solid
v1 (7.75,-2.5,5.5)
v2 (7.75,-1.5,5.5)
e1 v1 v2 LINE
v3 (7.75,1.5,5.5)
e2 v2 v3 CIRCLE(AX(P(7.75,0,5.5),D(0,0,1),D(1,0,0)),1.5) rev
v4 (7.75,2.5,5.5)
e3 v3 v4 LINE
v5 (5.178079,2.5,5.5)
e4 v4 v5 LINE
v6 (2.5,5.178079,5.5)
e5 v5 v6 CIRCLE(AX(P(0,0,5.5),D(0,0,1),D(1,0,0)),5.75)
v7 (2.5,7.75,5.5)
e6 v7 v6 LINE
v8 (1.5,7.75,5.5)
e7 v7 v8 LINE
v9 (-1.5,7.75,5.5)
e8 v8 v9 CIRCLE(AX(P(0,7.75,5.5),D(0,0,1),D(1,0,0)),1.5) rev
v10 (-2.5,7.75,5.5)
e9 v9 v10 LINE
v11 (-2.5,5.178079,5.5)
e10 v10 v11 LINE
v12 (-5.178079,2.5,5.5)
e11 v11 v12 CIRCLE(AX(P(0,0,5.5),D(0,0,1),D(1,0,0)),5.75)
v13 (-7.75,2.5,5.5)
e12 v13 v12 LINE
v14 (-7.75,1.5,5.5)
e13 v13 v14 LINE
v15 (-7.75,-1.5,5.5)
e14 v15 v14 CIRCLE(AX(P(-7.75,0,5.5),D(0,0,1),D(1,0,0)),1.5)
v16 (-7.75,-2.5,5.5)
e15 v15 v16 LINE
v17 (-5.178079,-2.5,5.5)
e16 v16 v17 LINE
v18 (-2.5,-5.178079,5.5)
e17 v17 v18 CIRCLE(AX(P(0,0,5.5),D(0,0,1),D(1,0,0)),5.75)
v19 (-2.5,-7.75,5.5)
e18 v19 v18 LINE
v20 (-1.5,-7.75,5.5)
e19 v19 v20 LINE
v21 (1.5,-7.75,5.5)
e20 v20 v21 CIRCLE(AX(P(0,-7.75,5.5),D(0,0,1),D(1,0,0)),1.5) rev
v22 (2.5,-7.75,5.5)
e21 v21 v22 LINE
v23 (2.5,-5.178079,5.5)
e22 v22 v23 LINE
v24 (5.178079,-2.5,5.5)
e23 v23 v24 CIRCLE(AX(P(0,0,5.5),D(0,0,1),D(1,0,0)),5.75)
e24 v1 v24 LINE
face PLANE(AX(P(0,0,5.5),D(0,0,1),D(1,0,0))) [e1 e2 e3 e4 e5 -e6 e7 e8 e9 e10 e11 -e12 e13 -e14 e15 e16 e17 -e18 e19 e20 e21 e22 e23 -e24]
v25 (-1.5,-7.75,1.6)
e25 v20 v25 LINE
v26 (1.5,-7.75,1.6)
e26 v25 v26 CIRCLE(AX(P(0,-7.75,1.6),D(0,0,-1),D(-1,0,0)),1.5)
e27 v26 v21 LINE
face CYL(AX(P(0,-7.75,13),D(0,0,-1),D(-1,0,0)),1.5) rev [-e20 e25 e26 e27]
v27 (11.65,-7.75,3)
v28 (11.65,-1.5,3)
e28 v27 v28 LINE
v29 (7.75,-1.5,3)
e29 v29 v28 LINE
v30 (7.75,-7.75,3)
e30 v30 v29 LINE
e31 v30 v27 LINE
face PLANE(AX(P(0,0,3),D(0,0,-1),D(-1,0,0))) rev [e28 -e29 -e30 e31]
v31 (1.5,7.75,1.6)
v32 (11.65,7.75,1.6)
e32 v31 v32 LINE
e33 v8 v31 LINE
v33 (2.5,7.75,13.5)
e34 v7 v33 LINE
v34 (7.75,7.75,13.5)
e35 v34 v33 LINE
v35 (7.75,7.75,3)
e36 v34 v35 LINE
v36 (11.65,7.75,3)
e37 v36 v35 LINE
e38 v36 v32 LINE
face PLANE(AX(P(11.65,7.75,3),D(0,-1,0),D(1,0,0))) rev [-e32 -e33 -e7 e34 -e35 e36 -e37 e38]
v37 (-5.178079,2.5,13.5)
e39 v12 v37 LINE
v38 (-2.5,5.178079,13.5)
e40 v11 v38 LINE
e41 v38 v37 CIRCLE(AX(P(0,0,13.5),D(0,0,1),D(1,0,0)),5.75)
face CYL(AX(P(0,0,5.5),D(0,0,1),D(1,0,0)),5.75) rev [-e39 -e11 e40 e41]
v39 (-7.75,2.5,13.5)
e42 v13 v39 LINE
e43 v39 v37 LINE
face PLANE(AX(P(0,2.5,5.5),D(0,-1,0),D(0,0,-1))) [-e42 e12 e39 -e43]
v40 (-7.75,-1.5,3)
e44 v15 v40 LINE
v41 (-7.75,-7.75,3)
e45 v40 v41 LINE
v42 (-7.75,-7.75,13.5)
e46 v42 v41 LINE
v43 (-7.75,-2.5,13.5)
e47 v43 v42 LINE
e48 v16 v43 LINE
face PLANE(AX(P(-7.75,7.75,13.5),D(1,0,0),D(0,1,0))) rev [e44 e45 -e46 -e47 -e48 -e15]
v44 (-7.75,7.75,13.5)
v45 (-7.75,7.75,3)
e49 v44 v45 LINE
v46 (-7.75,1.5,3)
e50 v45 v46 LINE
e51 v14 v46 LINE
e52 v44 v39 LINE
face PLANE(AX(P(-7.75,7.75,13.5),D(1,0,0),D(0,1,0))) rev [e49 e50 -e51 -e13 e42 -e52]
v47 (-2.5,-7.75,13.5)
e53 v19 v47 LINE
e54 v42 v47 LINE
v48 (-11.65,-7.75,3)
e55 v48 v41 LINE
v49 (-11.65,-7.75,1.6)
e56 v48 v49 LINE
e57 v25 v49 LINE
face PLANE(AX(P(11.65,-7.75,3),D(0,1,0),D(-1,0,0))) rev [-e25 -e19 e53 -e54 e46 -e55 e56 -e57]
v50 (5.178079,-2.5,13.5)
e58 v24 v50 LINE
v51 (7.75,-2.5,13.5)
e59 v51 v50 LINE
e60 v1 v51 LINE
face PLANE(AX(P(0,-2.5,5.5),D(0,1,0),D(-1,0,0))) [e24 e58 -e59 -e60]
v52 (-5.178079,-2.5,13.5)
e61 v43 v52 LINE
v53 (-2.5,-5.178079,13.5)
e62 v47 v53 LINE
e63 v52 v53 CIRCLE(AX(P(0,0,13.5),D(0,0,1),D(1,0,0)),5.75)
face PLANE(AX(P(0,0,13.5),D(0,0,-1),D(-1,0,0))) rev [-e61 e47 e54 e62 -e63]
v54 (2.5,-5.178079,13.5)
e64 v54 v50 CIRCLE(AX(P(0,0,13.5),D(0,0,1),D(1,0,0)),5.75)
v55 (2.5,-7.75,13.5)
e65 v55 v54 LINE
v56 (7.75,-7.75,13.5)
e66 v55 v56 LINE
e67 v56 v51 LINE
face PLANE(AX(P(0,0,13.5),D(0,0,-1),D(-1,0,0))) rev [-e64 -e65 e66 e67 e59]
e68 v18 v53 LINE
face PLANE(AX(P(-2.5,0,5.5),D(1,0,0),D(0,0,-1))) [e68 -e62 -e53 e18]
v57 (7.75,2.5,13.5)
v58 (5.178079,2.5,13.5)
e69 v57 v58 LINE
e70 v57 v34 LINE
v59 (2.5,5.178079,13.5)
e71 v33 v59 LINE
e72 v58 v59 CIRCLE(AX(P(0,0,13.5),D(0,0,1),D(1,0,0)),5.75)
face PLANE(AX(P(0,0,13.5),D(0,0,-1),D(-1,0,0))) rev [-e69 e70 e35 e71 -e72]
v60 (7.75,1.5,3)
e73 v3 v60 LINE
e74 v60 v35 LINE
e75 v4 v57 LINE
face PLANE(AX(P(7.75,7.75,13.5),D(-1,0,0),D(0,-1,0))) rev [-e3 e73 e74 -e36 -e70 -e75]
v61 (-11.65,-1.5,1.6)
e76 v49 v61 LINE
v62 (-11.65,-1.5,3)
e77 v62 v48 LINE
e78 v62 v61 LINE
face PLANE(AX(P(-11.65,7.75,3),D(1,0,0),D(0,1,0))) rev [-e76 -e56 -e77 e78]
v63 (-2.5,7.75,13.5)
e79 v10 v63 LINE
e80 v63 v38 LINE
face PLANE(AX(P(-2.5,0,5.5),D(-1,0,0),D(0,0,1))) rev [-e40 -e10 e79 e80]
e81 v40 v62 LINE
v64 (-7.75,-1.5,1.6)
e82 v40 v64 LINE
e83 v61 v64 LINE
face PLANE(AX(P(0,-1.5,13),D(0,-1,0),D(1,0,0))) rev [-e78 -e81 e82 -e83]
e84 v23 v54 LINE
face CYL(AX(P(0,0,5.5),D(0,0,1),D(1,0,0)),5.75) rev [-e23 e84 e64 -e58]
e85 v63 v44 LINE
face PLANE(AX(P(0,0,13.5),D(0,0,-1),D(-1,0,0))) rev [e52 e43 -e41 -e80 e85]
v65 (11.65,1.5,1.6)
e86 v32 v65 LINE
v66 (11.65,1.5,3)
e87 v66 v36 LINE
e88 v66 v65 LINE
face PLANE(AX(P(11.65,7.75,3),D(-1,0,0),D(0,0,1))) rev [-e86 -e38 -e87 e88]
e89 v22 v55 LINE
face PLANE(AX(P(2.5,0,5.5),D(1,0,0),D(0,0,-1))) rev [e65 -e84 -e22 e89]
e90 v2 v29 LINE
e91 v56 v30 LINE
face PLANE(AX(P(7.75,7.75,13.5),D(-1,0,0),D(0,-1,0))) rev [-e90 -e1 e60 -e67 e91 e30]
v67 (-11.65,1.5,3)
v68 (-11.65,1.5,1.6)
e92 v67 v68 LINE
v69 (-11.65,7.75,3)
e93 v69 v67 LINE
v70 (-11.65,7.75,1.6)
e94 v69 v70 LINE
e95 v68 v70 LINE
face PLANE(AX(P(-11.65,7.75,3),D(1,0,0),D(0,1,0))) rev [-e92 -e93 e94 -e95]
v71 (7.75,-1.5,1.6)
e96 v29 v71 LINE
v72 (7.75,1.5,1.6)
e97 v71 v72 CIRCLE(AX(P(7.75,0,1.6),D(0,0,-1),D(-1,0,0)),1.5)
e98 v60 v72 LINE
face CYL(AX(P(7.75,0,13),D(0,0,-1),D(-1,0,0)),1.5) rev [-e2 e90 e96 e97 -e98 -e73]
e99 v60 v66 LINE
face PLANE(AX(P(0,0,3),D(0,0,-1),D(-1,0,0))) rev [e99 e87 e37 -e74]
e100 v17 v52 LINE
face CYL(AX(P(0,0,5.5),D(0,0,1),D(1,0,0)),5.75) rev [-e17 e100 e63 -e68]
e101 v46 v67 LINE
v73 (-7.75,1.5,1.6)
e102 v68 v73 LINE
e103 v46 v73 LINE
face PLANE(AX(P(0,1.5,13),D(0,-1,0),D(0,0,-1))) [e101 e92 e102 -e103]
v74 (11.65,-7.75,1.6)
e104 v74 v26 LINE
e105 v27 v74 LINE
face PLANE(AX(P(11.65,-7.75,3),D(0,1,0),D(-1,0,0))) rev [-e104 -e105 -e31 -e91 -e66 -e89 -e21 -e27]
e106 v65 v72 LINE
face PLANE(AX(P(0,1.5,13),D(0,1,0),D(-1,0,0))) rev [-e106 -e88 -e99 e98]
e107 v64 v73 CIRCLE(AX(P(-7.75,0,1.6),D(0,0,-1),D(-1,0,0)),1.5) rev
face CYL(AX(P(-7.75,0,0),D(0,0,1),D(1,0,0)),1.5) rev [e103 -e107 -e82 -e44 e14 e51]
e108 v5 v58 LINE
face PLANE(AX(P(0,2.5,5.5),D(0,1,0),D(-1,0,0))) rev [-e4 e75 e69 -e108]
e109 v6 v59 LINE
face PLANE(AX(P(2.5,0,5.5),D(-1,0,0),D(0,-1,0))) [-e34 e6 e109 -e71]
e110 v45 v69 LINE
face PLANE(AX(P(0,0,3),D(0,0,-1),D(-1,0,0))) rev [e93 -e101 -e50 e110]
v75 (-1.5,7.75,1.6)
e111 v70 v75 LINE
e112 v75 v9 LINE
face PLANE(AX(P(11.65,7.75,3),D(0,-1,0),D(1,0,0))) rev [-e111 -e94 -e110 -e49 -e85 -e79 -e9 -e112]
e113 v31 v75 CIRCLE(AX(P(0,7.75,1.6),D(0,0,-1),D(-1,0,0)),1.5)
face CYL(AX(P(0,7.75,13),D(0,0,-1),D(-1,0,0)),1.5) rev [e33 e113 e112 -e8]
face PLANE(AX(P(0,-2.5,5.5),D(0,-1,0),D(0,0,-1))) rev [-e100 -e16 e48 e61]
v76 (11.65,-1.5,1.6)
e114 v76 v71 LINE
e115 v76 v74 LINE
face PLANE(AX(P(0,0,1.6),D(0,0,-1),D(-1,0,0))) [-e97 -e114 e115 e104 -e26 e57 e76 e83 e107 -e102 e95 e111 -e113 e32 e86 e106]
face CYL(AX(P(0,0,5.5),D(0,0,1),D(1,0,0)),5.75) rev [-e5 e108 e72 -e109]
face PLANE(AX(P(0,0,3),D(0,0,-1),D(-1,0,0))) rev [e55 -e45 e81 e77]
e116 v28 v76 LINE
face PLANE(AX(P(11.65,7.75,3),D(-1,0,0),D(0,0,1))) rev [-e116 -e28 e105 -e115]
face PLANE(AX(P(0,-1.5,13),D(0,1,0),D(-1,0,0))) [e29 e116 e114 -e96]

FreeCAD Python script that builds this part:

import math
import FreeCAD as App
import Part
import Sketcher

V = App.Vector


def add_polygon(sketch, points):
    """Adds a closed chain of lines whose ends are joined by coincident constraints."""
    first, n = sketch.GeometryCount, len(points)
    for a, b in zip(points, points[1:] + points[:1]):
        sketch.addGeometry(Part.LineSegment(App.Vector(*a, 0), App.Vector(*b, 0)), False)
    for i in range(n):
        sketch.addConstraint(Sketcher.Constraint("Coincident", first + i, 2, first + (i + 1) % n, 1))

doc = App.newDocument("Part")
body = doc.addObject("PartDesign::Body", "Body")

sketch1 = doc.addObject("Sketcher::SketchObject", "Sketch")
body.addObject(sketch1)
sketch1.AttachmentSupport = (doc.XY_Plane, [""])
sketch1.MapMode = "FlatFace"
add_polygon(sketch1, [(-12, 8), (-12, -8), (12, -8), (12, 8)])
sketch1.addConstraint(Sketcher.Constraint("Vertical", 0))
sketch1.addConstraint(Sketcher.Constraint("Horizontal", 1))
sketch1.addConstraint(Sketcher.Constraint("Vertical", 2))
sketch1.addConstraint(Sketcher.Constraint("Horizontal", 3))
sketch1.addConstraint(Sketcher.Constraint("Symmetric", 0, 2, 2, 2, -1, 1))
sketch1.addConstraint(Sketcher.Constraint("DistanceX", 1, 1, 1, 2, 23.3))
sketch1.addConstraint(Sketcher.Constraint("DistanceY", 0, 2, 0, 1, 15.5))
pad1 = doc.addObject("PartDesign::Pad", "Pad")
body.addObject(pad1)
pad1.Profile = sketch1
pad1.Length = 3

sketch2 = doc.addObject("Sketcher::SketchObject", "Sketch001")
body.addObject(sketch2)
sketch2.AttachmentSupport = (doc.XY_Plane, [""])
sketch2.MapMode = "FlatFace"
sketch2.AttachmentOffset = App.Placement(V(0, 0, 3), App.Rotation())
add_polygon(sketch2, [(-8, 8), (-8, -8), (8, -8), (8, 8)])
sketch2.addConstraint(Sketcher.Constraint("Vertical", 0))
sketch2.addConstraint(Sketcher.Constraint("Horizontal", 1))
sketch2.addConstraint(Sketcher.Constraint("Vertical", 2))
sketch2.addConstraint(Sketcher.Constraint("Horizontal", 3))
sketch2.addConstraint(Sketcher.Constraint("Symmetric", 0, 2, 2, 2, -1, 1))
sketch2.addConstraint(Sketcher.Constraint("Equal", 3, 0))
sketch2.addConstraint(Sketcher.Constraint("DistanceX", 1, 1, 1, 2, 15.5))
pad2 = doc.addObject("PartDesign::Pad", "Pad001")
body.addObject(pad2)
pad2.Profile = sketch2
pad2.Length = 10.5

sketch3 = doc.addObject("Sketcher::SketchObject", "Sketch002")
body.addObject(sketch3)
sketch3.AttachmentSupport = (doc.XY_Plane, [""])
sketch3.MapMode = "FlatFace"
sketch3.AttachmentOffset = App.Placement(V(0, 0, 13.5), App.Rotation())
sketch3.addGeometry(Part.ArcOfCircle(Part.Circle(V(0, 0, 0), V(0, 0, 1), 5.7), math.radians(116), math.radians(154)), False)
sketch3.addGeometry(Part.LineSegment(V(-5.2, 2.5, 0), V(-7.8, 2.5, 0)), False)
sketch3.addGeometry(Part.LineSegment(V(-7.8, 2.5, 0), V(-7.8, -2.5, 0)), False)
sketch3.addGeometry(Part.LineSegment(V(-7.8, -2.5, 0), V(-5.2, -2.5, 0)), False)
sketch3.addGeometry(Part.ArcOfCircle(Part.Circle(V(0, 0, 0), V(0, 0, 1), 5.7), math.radians(-154), math.radians(-116)), False)
sketch3.addGeometry(Part.LineSegment(V(-2.5, -5.2, 0), V(-2.5, -7.8, 0)), False)
sketch3.addGeometry(Part.LineSegment(V(-2.5, -7.8, 0), V(2.5, -7.8, 0)), False)
sketch3.addGeometry(Part.LineSegment(V(2.5, -7.8, 0), V(2.5, -5.2, 0)), False)
sketch3.addGeometry(Part.ArcOfCircle(Part.Circle(V(0, 0, 0), V(0, 0, 1), 5.7), math.radians(-64), math.radians(-26)), False)
sketch3.addGeometry(Part.LineSegment(V(5.2, -2.5, 0), V(7.8, -2.5, 0)), False)
sketch3.addGeometry(Part.LineSegment(V(7.8, -2.5, 0), V(7.8, 2.5, 0)), False)
sketch3.addGeometry(Part.LineSegment(V(7.8, 2.5, 0), V(5.2, 2.5, 0)), False)
sketch3.addGeometry(Part.ArcOfCircle(Part.Circle(V(0, 0, 0), V(0, 0, 1), 5.7), math.radians(26), math.radians(64)), False)
sketch3.addGeometry(Part.LineSegment(V(2.5, 5.2, 0), V(2.5, 7.8, 0)), False)
sketch3.addGeometry(Part.LineSegment(V(2.5, 7.8, 0), V(-2.5, 7.8, 0)), False)
sketch3.addGeometry(Part.LineSegment(V(-2.5, 7.8, 0), V(-2.5, 5.2, 0)), False)
sketch3.addConstraint(Sketcher.Constraint("Coincident", 0, 2, 1, 1))
sketch3.addConstraint(Sketcher.Constraint("Coincident", 1, 2, 2, 1))
sketch3.addConstraint(Sketcher.Constraint("Coincident", 2, 2, 3, 1))
sketch3.addConstraint(Sketcher.Constraint("Coincident", 3, 2, 4, 1))
sketch3.addConstraint(Sketcher.Constraint("Coincident", 4, 2, 5, 1))
sketch3.addConstraint(Sketcher.Constraint("Coincident", 5, 2, 6, 1))
sketch3.addConstraint(Sketcher.Constraint("Coincident", 6, 2, 7, 1))
sketch3.addConstraint(Sketcher.Constraint("Coincident", 7, 2, 8, 1))
sketch3.addConstraint(Sketcher.Constraint("Coincident", 8, 2, 9, 1))
sketch3.addConstraint(Sketcher.Constraint("Coincident", 9, 2, 10, 1))
sketch3.addConstraint(Sketcher.Constraint("Coincident", 10, 2, 11, 1))
sketch3.addConstraint(Sketcher.Constraint("Coincident", 11, 2, 12, 1))
sketch3.addConstraint(Sketcher.Constraint("Coincident", 12, 2, 13, 1))
sketch3.addConstraint(Sketcher.Constraint("Coincident", 13, 2, 14, 1))
sketch3.addConstraint(Sketcher.Constraint("Coincident", 14, 2, 15, 1))
sketch3.addConstraint(Sketcher.Constraint("Coincident", 15, 2, 0, 1))
sketch3.addConstraint(Sketcher.Constraint("Horizontal", 1))
sketch3.addConstraint(Sketcher.Constraint("Vertical", 2))
sketch3.addConstraint(Sketcher.Constraint("Horizontal", 3))
sketch3.addConstraint(Sketcher.Constraint("Vertical", 5))
sketch3.addConstraint(Sketcher.Constraint("Horizontal", 6))
sketch3.addConstraint(Sketcher.Constraint("Vertical", 7))
sketch3.addConstraint(Sketcher.Constraint("Horizontal", 9))
sketch3.addConstraint(Sketcher.Constraint("Vertical", 10))
sketch3.addConstraint(Sketcher.Constraint("Horizontal", 11))
sketch3.addConstraint(Sketcher.Constraint("Vertical", 13))
sketch3.addConstraint(Sketcher.Constraint("Horizontal", 14))
sketch3.addConstraint(Sketcher.Constraint("Vertical", 15))
sketch3.addConstraint(Sketcher.Constraint("Coincident", 0, 3, -1, 1))
sketch3.addConstraint(Sketcher.Constraint("Coincident", 4, 3, -1, 1))
sketch3.addConstraint(Sketcher.Constraint("Coincident", 8, 3, -1, 1))
sketch3.addConstraint(Sketcher.Constraint("Coincident", 12, 3, -1, 1))
sketch3.addConstraint(Sketcher.Constraint("Equal", 0, 4))
sketch3.addConstraint(Sketcher.Constraint("Equal", 4, 8))
sketch3.addConstraint(Sketcher.Constraint("Equal", 8, 12))
sketch3.addConstraint(Sketcher.Constraint("Symmetric", 1, 2, 9, 2, -1, 1))
sketch3.addConstraint(Sketcher.Constraint("Symmetric", 5, 2, 13, 2, -1, 1))
sketch3.addConstraint(Sketcher.Constraint("Horizontal", 4, 2, 7, 2))
sketch3.addConstraint(Sketcher.Constraint("Horizontal", 3, 2, 8, 2))
sketch3.addConstraint(Sketcher.Constraint("Horizontal", 1, 2, 10, 2))
sketch3.addConstraint(Sketcher.Constraint("Horizontal", 12, 2, 15, 2))
sketch3.addConstraint(Sketcher.Constraint("Equal", 14, 2))
sketch3.addConstraint(Sketcher.Constraint("Equal", 11, 5))
sketch3.addConstraint(Sketcher.Constraint("DistanceX", 6, 1, 6, 2, 5.0))
sketch3.addConstraint(Sketcher.Constraint("Radius", 0, 5.75))
sketch3.addConstraint(Sketcher.Constraint("DistanceX", 1, 2, -1, 1, 7.75))
pocket1 = doc.addObject("PartDesign::Pocket", "Pocket")
body.addObject(pocket1)
pocket1.Profile = sketch3
pocket1.Length = 8

sketch4 = doc.addObject("Sketcher::SketchObject", "Sketch003")
body.addObject(sketch4)
sketch4.AttachmentSupport = (doc.XY_Plane, [""])
sketch4.MapMode = "FlatFace"
sketch4.AttachmentOffset = App.Placement(V(0, 0, 3), App.Rotation())
sketch4.addGeometry(Part.Circle(V(0, 7.8, 0), V(0, 0, 1), 1.5), False)
sketch4.addGeometry(Part.ArcOfCircle(Part.Circle(V(7.8, 0, 0), V(0, 0, 1), 1.5), math.radians(90), math.radians(270)), False)
sketch4.addGeometry(Part.LineSegment(V(7.8, -1.5, 0), V(11.7, -1.5, 0)), False)
sketch4.addGeometry(Part.LineSegment(V(11.7, -1.5, 0), V(11.7, 1.5, 0)), False)
sketch4.addGeometry(Part.LineSegment(V(11.7, 1.5, 0), V(7.8, 1.5, 0)), False)
sketch4.addGeometry(Part.LineSegment(V(-7.8, 1.5, 0), V(-11.7, 1.5, 0)), False)
sketch4.addGeometry(Part.LineSegment(V(-11.7, 1.5, 0), V(-11.7, -1.5, 0)), False)
sketch4.addGeometry(Part.LineSegment(V(-11.7, -1.5, 0), V(-7.8, -1.5, 0)), False)
sketch4.addGeometry(Part.ArcOfCircle(Part.Circle(V(-7.7, 0, 0), V(0, 0, 1), 1.5), math.radians(-90), math.radians(0)), False)
sketch4.addGeometry(Part.ArcOfCircle(Part.Circle(V(-7.7, 0, 0), V(0, 0, 1), 1.5), math.radians(0), math.radians(90)), False)
sketch4.addGeometry(Part.Circle(V(0, -7.8, 0), V(0, 0, 1), 1.5), False)
sketch4.addConstraint(Sketcher.Constraint("Tangent", 1, 2, 2, 1))
sketch4.addConstraint(Sketcher.Constraint("Coincident", 2, 2, 3, 1))
sketch4.addConstraint(Sketcher.Constraint("Coincident", 3, 2, 4, 1))
sketch4.addConstraint(Sketcher.Constraint("Tangent", 4, 2, 1, 1))
sketch4.addConstraint(Sketcher.Constraint("Coincident", 5, 2, 6, 1))
sketch4.addConstraint(Sketcher.Constraint("Coincident", 6, 2, 7, 1))
sketch4.addConstraint(Sketcher.Constraint("Tangent", 7, 2, 8, 1))
sketch4.addConstraint(Sketcher.Constraint("Tangent", 8, 2, 9, 1))
sketch4.addConstraint(Sketcher.Constraint("Tangent", 9, 2, 5, 1))
sketch4.addConstraint(Sketcher.Constraint("Horizontal", 2))
sketch4.addConstraint(Sketcher.Constraint("Vertical", 3))
sketch4.addConstraint(Sketcher.Constraint("Horizontal", 4))
sketch4.addConstraint(Sketcher.Constraint("Horizontal", 5))
sketch4.addConstraint(Sketcher.Constraint("Vertical", 6))
sketch4.addConstraint(Sketcher.Constraint("Horizontal", 7))
sketch4.addConstraint(Sketcher.Constraint("Equal", 0, 1))
sketch4.addConstraint(Sketcher.Constraint("Equal", 1, 8))
sketch4.addConstraint(Sketcher.Constraint("Equal", 8, 9))
sketch4.addConstraint(Sketcher.Constraint("Equal", 9, 10))
sketch4.addConstraint(Sketcher.Constraint("Symmetric", 1, 3, 8, 3, -1, 1))
sketch4.addConstraint(Sketcher.Constraint("Symmetric", 0, 3, 10, 3, -1, 1))
sketch4.addConstraint(Sketcher.Constraint("Symmetric", 3, 2, 5, 2, -2))
sketch4.addConstraint(Sketcher.Constraint("PointOnObject", 0, 3, -2))
sketch4.addConstraint(Sketcher.Constraint("PointOnObject", 8, 2, -1))
sketch4.addConstraint(Sketcher.Constraint("Diameter", 0, 3.0))
sketch4.addConstraint(Sketcher.Constraint("DistanceX", 2, 1, 2, 2, 3.9))
sketch4.addConstraint(Sketcher.Constraint("DistanceX", 8, 3, 1, 3, 15.5))
sketch4.addConstraint(Sketcher.Constraint("DistanceY", 10, 3, 0, 3, 15.5))
pocket2 = doc.addObject("PartDesign::Pocket", "Pocket001")
body.addObject(pocket2)
pocket2.Profile = sketch4
pocket2.Type = "ThroughAll"
pocket2.Midplane = True

sketch5 = doc.addObject("Sketcher::SketchObject", "Sketch004")
body.addObject(sketch5)
sketch5.AttachmentSupport = (doc.XY_Plane, [""])
sketch5.MapMode = "FlatFace"
add_polygon(sketch5, [(16, 11), (16, -13), (-20, -13), (-20, 11)])
sketch5.addConstraint(Sketcher.Constraint("Vertical", 0))
sketch5.addConstraint(Sketcher.Constraint("Horizontal", 1))
sketch5.addConstraint(Sketcher.Constraint("Vertical", 2))
sketch5.addConstraint(Sketcher.Constraint("Horizontal", 3))
sketch5.addConstraint(Sketcher.Constraint("DistanceY", 0, 2, 0, 1, 23.29879))
sketch5.addConstraint(Sketcher.Constraint("DistanceX", 1, 2, 1, 1, 35.704226))
sketch5.addConstraint(Sketcher.Constraint("DistanceX", -1, 1, 0, 2, 16.012023))
sketch5.addConstraint(Sketcher.Constraint("DistanceY", 0, 2, -1, 1, 12.691477))
pocket3 = doc.addObject("PartDesign::Pocket", "Pocket002")
body.addObject(pocket3)
pocket3.Profile = sketch5
pocket3.Length = 1.6
pocket3.Reversed = True

doc.recompute()
